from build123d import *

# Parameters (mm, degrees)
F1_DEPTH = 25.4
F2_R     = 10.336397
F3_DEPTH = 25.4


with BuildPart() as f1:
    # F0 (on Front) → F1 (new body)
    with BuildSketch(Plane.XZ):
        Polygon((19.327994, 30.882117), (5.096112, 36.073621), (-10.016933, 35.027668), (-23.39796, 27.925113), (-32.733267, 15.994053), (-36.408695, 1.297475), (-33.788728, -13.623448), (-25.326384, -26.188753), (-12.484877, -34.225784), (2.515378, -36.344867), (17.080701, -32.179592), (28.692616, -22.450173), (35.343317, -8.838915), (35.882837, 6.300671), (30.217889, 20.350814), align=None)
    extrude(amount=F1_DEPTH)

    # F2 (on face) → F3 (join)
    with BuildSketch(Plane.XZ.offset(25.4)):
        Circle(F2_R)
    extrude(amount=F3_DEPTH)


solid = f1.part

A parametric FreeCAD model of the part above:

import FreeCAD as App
import Part
import Sketcher

V = App.Vector
Q = App.Units.Quantity

doc = App.newDocument("Part")
body = doc.addObject("PartDesign::Body", "Body")

# Sketch on XZ plane
sketch1 = body.newObject("Sketcher::SketchObject", "Sketch")
sketch1.AttachmentSupport = (doc.getObject("XZ_Plane"), [""])
sketch1.MapMode = "FlatFace"
sketch1.addGeometry([
    Part.LineSegment(V(19.327994, 30.882117, 0), V(5.096112, 36.073621, 0)),  # 0
    Part.LineSegment(V(5.096112, 36.073621, 0), V(-10.016933, 35.027668, 0)),  # 1
    Part.LineSegment(V(-10.016933, 35.027668, 0), V(-23.39796, 27.925113, 0)),  # 2
    Part.LineSegment(V(-23.39796, 27.925113, 0), V(-32.733267, 15.994053, 0)),  # 3
    Part.LineSegment(V(-32.733267, 15.994053, 0), V(-36.408695, 1.297475, 0)),  # 4
    Part.LineSegment(V(-36.408695, 1.297475, 0), V(-33.788728, -13.623448, 0)),  # 5
    Part.LineSegment(V(-33.788728, -13.623448, 0), V(-25.326384, -26.188753, 0)),  # 6
    Part.LineSegment(V(-25.326384, -26.188753, 0), V(-12.484877, -34.225784, 0)),  # 7
    Part.LineSegment(V(-12.484877, -34.225784, 0), V(2.515378, -36.344867, 0)),  # 8
    Part.LineSegment(V(2.515378, -36.344867, 0), V(17.080701, -32.179592, 0)),  # 9
    Part.LineSegment(V(17.080701, -32.179592, 0), V(28.692616, -22.450173, 0)),  # 10
    Part.LineSegment(V(28.692616, -22.450173, 0), V(35.343317, -8.838915, 0)),  # 11
    Part.LineSegment(V(35.343317, -8.838915, 0), V(35.882837, 6.300671, 0)),  # 12
    Part.LineSegment(V(35.882837, 6.300671, 0), V(30.217889, 20.350814, 0)),  # 13
    Part.LineSegment(V(30.217889, 20.350814, 0), V(19.327994, 30.882117, 0)),  # 14
], False)
sketch1.addConstraint([
    Sketcher.Constraint("Coincident", 0, 2, 1, 1),
    Sketcher.Constraint("Coincident", 1, 2, 2, 1),
    Sketcher.Constraint("Coincident", 2, 2, 3, 1),
    Sketcher.Constraint("Coincident", 3, 2, 4, 1),
    Sketcher.Constraint("Coincident", 4, 2, 5, 1),
    Sketcher.Constraint("Coincident", 5, 2, 6, 1),
    Sketcher.Constraint("Coincident", 6, 2, 7, 1),
    Sketcher.Constraint("Coincident", 7, 2, 8, 1),
    Sketcher.Constraint("Coincident", 8, 2, 9, 1),
    Sketcher.Constraint("Coincident", 9, 2, 10, 1),
    Sketcher.Constraint("Coincident", 10, 2, 11, 1),
    Sketcher.Constraint("Coincident", 11, 2, 12, 1),
    Sketcher.Constraint("Coincident", 12, 2, 13, 1),
    Sketcher.Constraint("Coincident", 13, 2, 14, 1),
    Sketcher.Constraint("Coincident", 14, 2, 0, 1),
    Sketcher.Constraint("DistanceX", 8, 2, 10, 2, Q("1.0305999 in")),
    Sketcher.Constraint("DistanceX", -1, 1, 9, 2, Q("17.080701 mm")),
    Sketcher.Constraint("DistanceY", 5, 2, 3, 2, Q("29.617501 mm")),
    Sketcher.Constraint("DistanceX", 6, 2, 10, 2, Q("54.019 mm")),
    Sketcher.Constraint("DistanceX", 10, 2, 11, 2, Q("6.650701 mm")),
    Sketcher.Constraint("DistanceX", -1, 1, 0, 2, Q("5.096112 mm")),
    Sketcher.Constraint("DistanceY", -1, 1, 0, 2, Q("36.073621 mm")),
    Sketcher.Constraint("DistanceX", 2, 2, -1, 1, Q("23.39796 mm")),
    Sketcher.Constraint("DistanceX", -1, 1, 8, 2, Q("2.515378 mm")),
    Sketcher.Constraint("DistanceY", -1, 1, 12, 2, Q("6.300671 mm")),
    Sketcher.Constraint("DistanceX", -1, 1, 13, 2, Q("30.217889 mm")),
    Sketcher.Constraint("DistanceY", 2, 2, 0, 2, Q("8.148508 mm")),
    Sketcher.Constraint("DistanceY", 3, 2, 2, 2, Q("11.93106 mm")),
    Sketcher.Constraint("DistanceX", 3, 2, 0, 2, Q("37.829379 mm")),
    Sketcher.Constraint("DistanceX", 4, 2, 3, 2, Q("3.675428 mm")),
    Sketcher.Constraint("DistanceY", 4, 2, 2, 2, Q("26.627638 mm")),
    Sketcher.Constraint("DistanceX", 4, 2, 1, 2, Q("26.391762 mm")),
    Sketcher.Constraint("DistanceX", 5, 2, 3, 2, Q("1.055461 mm")),
    Sketcher.Constraint("DistanceY", 6, 2, 1, 2, Q("61.216421 mm")),
    Sketcher.Constraint("DistanceY", 7, 2, 6, 2, Q("8.037031 mm")),
    Sketcher.Constraint("DistanceX", 5, 2, 7, 2, Q("21.303851 mm")),
    Sketcher.Constraint("DistanceY", 7, 2, 4, 2, Q("35.523259 mm")),
    Sketcher.Constraint("DistanceY", 8, 2, 5, 2, Q("22.721419 mm")),
    Sketcher.Constraint("DistanceY", 7, 2, 9, 2, Q("2.046192 mm")),
    Sketcher.Constraint("DistanceY", 9, 2, 10, 2, Q("9.729419 mm")),
    Sketcher.Constraint("DistanceY", 7, 2, 11, 2, Q("25.386869 mm")),
    Sketcher.Constraint("DistanceX", 11, 2, 12, 2, Q("0.53952 mm")),
    Sketcher.Constraint("DistanceY", 11, 2, 13, 2, Q("29.189729 mm")),
    Sketcher.Constraint("DistanceY", 14, 2, 1, 2, Q("4.145551 mm")),
    Sketcher.Constraint("Distance", 0, Q("15.149197 mm")),
])
pad1 = body.newObject("PartDesign::Pad", "Pad")
pad1.Profile = sketch1
pad1.Length = Q("1 in")

# Sketch on XZ plane
sketch2 = body.newObject("Sketcher::SketchObject", "Sketch001")
sketch2.AttachmentSupport = (doc.getObject("XZ_Plane"), [""])
sketch2.MapMode = "FlatFace"
sketch2.AttachmentOffset = App.Placement(V(0, 0, 1 * 25.4), App.Rotation())
sketch2.addGeometry(Part.Circle(V(0, 0, 0), V(0, 0, 1), 10.336397), False)
sketch2.addConstraint([
    Sketcher.Constraint("Coincident", 0, 3, -1, 1),
    Sketcher.Constraint("Diameter", 0, Q("20.672794 mm")),
])
pad2 = body.newObject("PartDesign::Pad", "Pad001")
pad2.Profile = sketch2
pad2.Length = Q("1 in")

doc.recompute()
